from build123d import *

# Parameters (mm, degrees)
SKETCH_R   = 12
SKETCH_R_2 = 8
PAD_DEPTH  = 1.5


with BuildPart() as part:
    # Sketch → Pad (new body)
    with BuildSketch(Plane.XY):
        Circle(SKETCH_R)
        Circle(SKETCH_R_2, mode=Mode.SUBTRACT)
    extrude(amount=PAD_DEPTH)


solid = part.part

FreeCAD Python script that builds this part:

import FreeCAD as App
import Part
import Sketcher
Q = App.Units.Quantity

doc = App.newDocument("Part")
params = doc.addObject("Spreadsheet::Sheet", "Params")
for row, (alias, value) in enumerate([
    ("sketch1_diameter", "24 mm"),
    ("sketch1_diameter2", "16 mm"),
    ("pad1_length", "1.5 mm"),
], start=1):
    params.set(f"A{row}", alias)
    params.set(f"B{row}", "=" + value)
    params.setAlias(f"B{row}", alias)

body = doc.addObject("PartDesign::Body", "Body")

sketch1 = body.newObject("Sketcher::SketchObject", "Sketch")
sketch1.AttachmentSupport = (doc.getObject("XY_Plane"), [""])
sketch1.MapMode = "FlatFace"
sketch1.addGeometry([
    Part.Circle(App.Vector(0, 0, 0), App.Vector(0, 0, 1), 12),
    Part.Circle(App.Vector(0, 0, 0), App.Vector(0, 0, 1), 8),
], False)
sketch1.addConstraint([
    Sketcher.Constraint("Coincident", 0, 3, -1, 1),
    Sketcher.Constraint("Coincident", 1, 3, -1, 1),
    Sketcher.Constraint("Diameter", 0, Q("24 mm")),
    Sketcher.Constraint("Diameter", 1, Q("16 mm")),
])
sketch1.setExpression("Constraints[2]", "Params.sketch1_diameter")
sketch1.setExpression("Constraints[3]", "Params.sketch1_diameter2")
pad1 = body.newObject("PartDesign::Pad", "Pad")
pad1.Profile = sketch1
pad1.setExpression("Length", "Params.pad1_length")

doc.recompute()
